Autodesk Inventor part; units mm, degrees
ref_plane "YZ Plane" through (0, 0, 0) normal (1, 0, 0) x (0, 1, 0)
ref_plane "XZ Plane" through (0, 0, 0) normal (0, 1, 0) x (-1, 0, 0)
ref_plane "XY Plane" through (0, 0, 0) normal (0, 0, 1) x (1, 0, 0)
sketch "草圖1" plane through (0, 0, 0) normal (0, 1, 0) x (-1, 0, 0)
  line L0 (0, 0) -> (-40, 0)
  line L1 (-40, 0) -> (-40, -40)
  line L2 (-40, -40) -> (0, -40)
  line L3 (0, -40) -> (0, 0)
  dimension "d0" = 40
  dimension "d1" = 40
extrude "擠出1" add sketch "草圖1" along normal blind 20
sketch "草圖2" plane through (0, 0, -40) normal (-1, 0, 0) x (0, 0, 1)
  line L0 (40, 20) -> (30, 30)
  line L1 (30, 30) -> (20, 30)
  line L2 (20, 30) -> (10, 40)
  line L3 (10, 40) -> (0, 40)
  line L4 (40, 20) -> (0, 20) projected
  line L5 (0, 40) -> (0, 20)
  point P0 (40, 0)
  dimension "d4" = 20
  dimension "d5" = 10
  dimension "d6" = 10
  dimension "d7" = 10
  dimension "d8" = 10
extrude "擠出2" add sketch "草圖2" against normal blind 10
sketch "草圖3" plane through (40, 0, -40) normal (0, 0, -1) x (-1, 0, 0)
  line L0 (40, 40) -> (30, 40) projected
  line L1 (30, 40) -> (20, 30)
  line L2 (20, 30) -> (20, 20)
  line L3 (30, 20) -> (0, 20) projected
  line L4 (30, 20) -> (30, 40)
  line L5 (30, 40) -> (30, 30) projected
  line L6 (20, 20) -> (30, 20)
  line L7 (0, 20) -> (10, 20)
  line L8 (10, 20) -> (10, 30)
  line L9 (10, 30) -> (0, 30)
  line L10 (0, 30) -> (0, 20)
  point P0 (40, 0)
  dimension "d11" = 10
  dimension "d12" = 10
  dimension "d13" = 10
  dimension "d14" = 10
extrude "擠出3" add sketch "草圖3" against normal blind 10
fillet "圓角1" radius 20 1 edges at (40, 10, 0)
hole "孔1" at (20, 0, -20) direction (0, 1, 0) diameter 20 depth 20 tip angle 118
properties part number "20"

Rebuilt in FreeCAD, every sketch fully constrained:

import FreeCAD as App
import Part
import Sketcher
from FreeCAD import Vector
Q = App.Units.Quantity


def edges_at(feature, points):
    """Names of the edges that pass closest to the given points."""
    edges = feature.Shape.Edges
    near = lambda p: min(range(len(edges)), key=lambda i: edges[i].distToShape(Part.Vertex(*p))[0])
    return sorted({f"Edge{near(p) + 1}" for p in points})

doc = App.newDocument("Part")
body = doc.addObject("PartDesign::Body", "Body")

sketch1 = body.newObject("Sketcher::SketchObject", "Sketch")
sketch1.AttachmentSupport = (doc.getObject("XZ_Plane"), [""])
sketch1.MapMode = "FlatFace"
sketch1.addGeometry([
    Part.LineSegment(Vector(0, -40, 0), Vector(0, 0, 0)),
    Part.LineSegment(Vector(0, 0, 0), Vector(40, 0, 0)),
    Part.LineSegment(Vector(40, 0, 0), Vector(40, -40, 0)),
    Part.LineSegment(Vector(40, -40, 0), Vector(0, -40, 0)),
], False)
sketch1.addConstraint([
    Sketcher.Constraint("Coincident", 0, 2, 1, 1),
    Sketcher.Constraint("Coincident", 1, 2, 2, 1),
    Sketcher.Constraint("Coincident", 2, 2, 3, 1),
    Sketcher.Constraint("Coincident", 3, 2, 0, 1),
    Sketcher.Constraint("Vertical", 0),
    Sketcher.Constraint("Horizontal", 1),
    Sketcher.Constraint("Vertical", 2),
    Sketcher.Constraint("Horizontal", 3),
    Sketcher.Constraint("Coincident", 0, 2, -1, 1),
    Sketcher.Constraint("Equal", 3, 0),
    Sketcher.Constraint("DistanceX", 1, 1, 1, 2, Q("40 mm")),
])
pad1 = body.newObject("PartDesign::Pad", "Pad")
pad1.Profile = sketch1
pad1.Length = 20
pad1.Reversed = True

sketch2 = body.newObject("Sketcher::SketchObject", "Sketch001")
sketch2.AttachmentSupport = (doc.getObject("YZ_Plane"), [""])
sketch2.MapMode = "FlatFace"
sketch2.addGeometry([
    Part.LineSegment(Vector(20, -40, 0), Vector(20, 0, 0)),
    Part.LineSegment(Vector(20, 0, 0), Vector(30, -10, 0)),
    Part.LineSegment(Vector(30, -10, 0), Vector(30, -20, 0)),
    Part.LineSegment(Vector(30, -20, 0), Vector(40, -30, 0)),
    Part.LineSegment(Vector(40, -30, 0), Vector(40, -40, 0)),
    Part.LineSegment(Vector(40, -40, 0), Vector(20, -40, 0)),
], False)
sketch2.addConstraint([
    Sketcher.Constraint("Coincident", 0, 2, 1, 1),
    Sketcher.Constraint("Coincident", 1, 2, 2, 1),
    Sketcher.Constraint("Coincident", 2, 2, 3, 1),
    Sketcher.Constraint("Coincident", 3, 2, 4, 1),
    Sketcher.Constraint("Coincident", 4, 2, 5, 1),
    Sketcher.Constraint("Coincident", 5, 2, 0, 1),
    Sketcher.Constraint("Vertical", 0),
    Sketcher.Constraint("Vertical", 2),
    Sketcher.Constraint("Vertical", 4),
    Sketcher.Constraint("Horizontal", 5),
    Sketcher.Constraint("PointOnObject", 0, 2, -1),
    Sketcher.Constraint("Parallel", 1, 3),
    Sketcher.Constraint("Equal", 2, 4),
    Sketcher.Constraint("Equal", 1, 3),
    Sketcher.Constraint("DistanceX", 5, 2, 5, 1, Q("20 mm")),
    Sketcher.Constraint("DistanceY", 2, 2, 2, 1, Q("10 mm")),
    Sketcher.Constraint("DistanceX", -1, 1, 0, 2, Q("20 mm")),
    Sketcher.Constraint("DistanceY", 1, 2, -1, 1, Q("10 mm")),
])
pad2 = body.newObject("PartDesign::Pad", "Pad001")
pad2.Profile = sketch2
pad2.Length = 10

sketch3 = body.newObject("Sketcher::SketchObject", "Sketch002")
sketch3.AttachmentSupport = (doc.getObject("XY_Plane"), [""])
sketch3.MapMode = "FlatFace"
sketch3.AttachmentOffset = App.Placement(Vector(0, 0, -40), App.Rotation())
sketch3.addGeometry([
    Part.LineSegment(Vector(10, 20, 0), Vector(10, 40, 0)),
    Part.LineSegment(Vector(10, 40, 0), Vector(20, 30, 0)),
    Part.LineSegment(Vector(20, 30, 0), Vector(20, 20, 0)),
    Part.LineSegment(Vector(20, 20, 0), Vector(10, 20, 0)),
    Part.LineSegment(Vector(40, 20, 0), Vector(30, 20, 0)),
    Part.LineSegment(Vector(30, 20, 0), Vector(30, 30, 0)),
    Part.LineSegment(Vector(30, 30, 0), Vector(40, 30, 0)),
    Part.LineSegment(Vector(40, 30, 0), Vector(40, 20, 0)),
], False)
sketch3.addConstraint([
    Sketcher.Constraint("Coincident", 0, 2, 1, 1),
    Sketcher.Constraint("Coincident", 1, 2, 2, 1),
    Sketcher.Constraint("Coincident", 2, 2, 3, 1),
    Sketcher.Constraint("Coincident", 3, 2, 0, 1),
    Sketcher.Constraint("Coincident", 4, 2, 5, 1),
    Sketcher.Constraint("Coincident", 5, 2, 6, 1),
    Sketcher.Constraint("Coincident", 6, 2, 7, 1),
    Sketcher.Constraint("Coincident", 7, 2, 4, 1),
    Sketcher.Constraint("Vertical", 0),
    Sketcher.Constraint("Vertical", 2),
    Sketcher.Constraint("Horizontal", 3),
    Sketcher.Constraint("Horizontal", 4),
    Sketcher.Constraint("Vertical", 5),
    Sketcher.Constraint("Horizontal", 6),
    Sketcher.Constraint("Vertical", 7),
    Sketcher.Constraint("Horizontal", 3, 2, 4, 2),
    Sketcher.Constraint("Horizontal", 1, 2, 5, 2),
    Sketcher.Constraint("Equal", 3, 4),
    Sketcher.Constraint("Equal", 6, 2),
    Sketcher.Constraint("DistanceX", 3, 2, 3, 1, Q("10 mm")),
    Sketcher.Constraint("DistanceX", -1, 1, 0, 2, Q("10 mm")),
    Sketcher.Constraint("DistanceY", 1, 2, 0, 2, Q("10 mm")),
    Sketcher.Constraint("DistanceX", 2, 2, 4, 2, Q("10 mm")),
    Sketcher.Constraint("DistanceY", -1, 1, 0, 2, Q("40 mm")),
])
pad3 = body.newObject("PartDesign::Pad", "Pad002")
pad3.Profile = sketch3
pad3.Length = 10
doc.recompute()

fillet = body.newObject("PartDesign::Fillet", "Fillet")
fillet.Base = (pad3, edges_at(pad3, [(40, 10, 0)]))
fillet.Radius = 20

sketch4 = body.newObject("Sketcher::SketchObject", "Sketch003")
sketch4.AttachmentSupport = (doc.getObject("XZ_Plane"), [""])
sketch4.MapMode = "FlatFace"
sketch4.addGeometry(Part.Circle(Vector(20, -20, 0), Vector(0, 0, 1), 10), False)
sketch4.addConstraint([
    Sketcher.Constraint("Diameter", 0, Q("20 mm")),
    Sketcher.Constraint("DistanceX", -1, 1, 0, 3, Q("20 mm")),
    Sketcher.Constraint("DistanceY", 0, 3, -1, 1, Q("20 mm")),
])
doc.recompute()
hole = body.newObject("PartDesign::Hole", "Hole")
hole.Profile = sketch4
hole.ThreadType = "None"
hole.Diameter = 20
hole.DepthType = "Dimension"
hole.Depth = 20
hole.DrillPoint = "Angled"
hole.DrillPointAngle = 118

doc.recompute()
